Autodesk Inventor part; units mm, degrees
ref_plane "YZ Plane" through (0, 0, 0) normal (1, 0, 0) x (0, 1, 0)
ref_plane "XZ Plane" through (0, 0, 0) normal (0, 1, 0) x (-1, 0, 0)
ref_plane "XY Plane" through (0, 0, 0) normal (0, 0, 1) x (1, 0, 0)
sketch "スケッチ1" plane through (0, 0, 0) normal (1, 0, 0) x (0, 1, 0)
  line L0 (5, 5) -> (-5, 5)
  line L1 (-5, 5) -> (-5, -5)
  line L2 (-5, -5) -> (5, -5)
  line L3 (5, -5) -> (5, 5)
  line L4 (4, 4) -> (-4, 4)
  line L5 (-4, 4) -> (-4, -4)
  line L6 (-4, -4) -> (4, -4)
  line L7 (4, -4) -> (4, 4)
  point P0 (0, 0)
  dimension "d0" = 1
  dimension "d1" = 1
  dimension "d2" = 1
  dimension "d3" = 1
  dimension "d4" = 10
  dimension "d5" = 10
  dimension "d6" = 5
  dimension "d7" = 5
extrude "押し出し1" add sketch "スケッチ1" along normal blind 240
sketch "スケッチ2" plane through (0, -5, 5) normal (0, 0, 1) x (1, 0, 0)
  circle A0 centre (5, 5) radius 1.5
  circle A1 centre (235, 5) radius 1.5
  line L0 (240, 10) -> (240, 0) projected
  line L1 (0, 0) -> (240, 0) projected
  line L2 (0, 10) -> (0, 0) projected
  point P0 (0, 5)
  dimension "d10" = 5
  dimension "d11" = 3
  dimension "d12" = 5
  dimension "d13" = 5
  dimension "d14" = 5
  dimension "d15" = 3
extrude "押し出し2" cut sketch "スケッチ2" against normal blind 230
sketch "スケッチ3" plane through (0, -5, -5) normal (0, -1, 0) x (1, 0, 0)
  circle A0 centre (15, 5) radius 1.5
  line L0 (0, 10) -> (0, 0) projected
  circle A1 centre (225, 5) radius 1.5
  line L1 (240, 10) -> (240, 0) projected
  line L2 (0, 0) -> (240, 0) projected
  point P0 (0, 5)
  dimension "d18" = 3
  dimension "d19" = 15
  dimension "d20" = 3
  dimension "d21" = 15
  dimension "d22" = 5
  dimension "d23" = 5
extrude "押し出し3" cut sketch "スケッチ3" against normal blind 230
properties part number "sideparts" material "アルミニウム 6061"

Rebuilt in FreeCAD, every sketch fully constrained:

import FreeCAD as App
import Part
import Sketcher

V = App.Vector
Q = App.Units.Quantity

doc = App.newDocument("Part")
body = doc.addObject("PartDesign::Body", "Body")

# Sketch on YZ plane
sketch1 = body.newObject("Sketcher::SketchObject", "Sketch")
sketch1.AttachmentSupport = (doc.getObject("YZ_Plane"), [""])
sketch1.MapMode = "FlatFace"
sketch1.addGeometry([
    Part.LineSegment(V(5, -5, 0), V(5, 5, 0)),  # 0
    Part.LineSegment(V(5, 5, 0), V(-5, 5, 0)),  # 1
    Part.LineSegment(V(-5, 5, 0), V(-5, -5, 0)),  # 2
    Part.LineSegment(V(-5, -5, 0), V(5, -5, 0)),  # 3
    Part.LineSegment(V(-4, 4, 0), V(4, 4, 0)),  # 4
    Part.LineSegment(V(4, 4, 0), V(4, -4, 0)),  # 5
    Part.LineSegment(V(4, -4, 0), V(-4, -4, 0)),  # 6
    Part.LineSegment(V(-4, -4, 0), V(-4, 4, 0)),  # 7
], False)
sketch1.addConstraint([
    Sketcher.Constraint("Coincident", 0, 2, 1, 1),
    Sketcher.Constraint("Coincident", 1, 2, 2, 1),
    Sketcher.Constraint("Coincident", 2, 2, 3, 1),
    Sketcher.Constraint("Coincident", 3, 2, 0, 1),
    Sketcher.Constraint("Coincident", 4, 2, 5, 1),
    Sketcher.Constraint("Coincident", 5, 2, 6, 1),
    Sketcher.Constraint("Coincident", 6, 2, 7, 1),
    Sketcher.Constraint("Coincident", 7, 2, 4, 1),
    Sketcher.Constraint("Vertical", 0),
    Sketcher.Constraint("Horizontal", 1),
    Sketcher.Constraint("Vertical", 2),
    Sketcher.Constraint("Horizontal", 3),
    Sketcher.Constraint("Horizontal", 4),
    Sketcher.Constraint("Vertical", 5),
    Sketcher.Constraint("Horizontal", 6),
    Sketcher.Constraint("Vertical", 7),
    Sketcher.Constraint("Symmetric", 0, 2, 2, 2, -1, 1),
    Sketcher.Constraint("Symmetric", 4, 2, 6, 2, -1, 1),
    Sketcher.Constraint("Equal", 3, 0),
    Sketcher.Constraint("Equal", 6, 5),
    Sketcher.Constraint("DistanceX", 1, 2, 1, 1, Q("10 mm")),
    Sketcher.Constraint("DistanceX", 4, 2, 0, 2, Q("1 mm")),
])
pad1 = body.newObject("PartDesign::Pad", "Pad")
pad1.Profile = sketch1
pad1.Length = 240

# Sketch on XY plane
sketch2 = body.newObject("Sketcher::SketchObject", "Sketch001")
sketch2.AttachmentSupport = (doc.getObject("XY_Plane"), [""])
sketch2.MapMode = "FlatFace"
sketch2.AttachmentOffset = App.Placement(V(0, 0, 5), App.Rotation())
sketch2.addGeometry([
    Part.Circle(V(5, 0, 0), V(0, 0, 1), 1.5),
    Part.Circle(V(235, 0, 0), V(0, 0, 1), 1.5),
], False)
sketch2.addConstraint([
    Sketcher.Constraint("Equal", 0, 1),
    Sketcher.Constraint("PointOnObject", 0, 3, -1),
    Sketcher.Constraint("PointOnObject", 1, 3, -1),
    Sketcher.Constraint("Diameter", 0, Q("3 mm")),
    Sketcher.Constraint("DistanceX", -1, 1, 0, 3, Q("5 mm")),
    Sketcher.Constraint("DistanceX", -1, 1, 1, 3, Q("235 mm")),
])
pocket1 = body.newObject("PartDesign::Pocket", "Pocket")
pocket1.Profile = sketch2
pocket1.Length = 230

# Sketch on XZ plane
sketch3 = body.newObject("Sketcher::SketchObject", "Sketch002")
sketch3.AttachmentSupport = (doc.getObject("XZ_Plane"), [""])
sketch3.MapMode = "FlatFace"
sketch3.AttachmentOffset = App.Placement(V(0, 0, 5), App.Rotation())
sketch3.addGeometry([
    Part.Circle(V(15, 0, 0), V(0, 0, 1), 1.5),
    Part.Circle(V(225, 0, 0), V(0, 0, 1), 1.5),
], False)
sketch3.addConstraint([
    Sketcher.Constraint("Equal", 0, 1),
    Sketcher.Constraint("PointOnObject", 0, 3, -1),
    Sketcher.Constraint("PointOnObject", 1, 3, -1),
    Sketcher.Constraint("Diameter", 0, Q("3 mm")),
    Sketcher.Constraint("DistanceX", -1, 1, 0, 3, Q("15 mm")),
    Sketcher.Constraint("DistanceX", -1, 1, 1, 3, Q("225 mm")),
])
pocket2 = body.newObject("PartDesign::Pocket", "Pocket001")
pocket2.Profile = sketch3
pocket2.Length = 230

doc.recompute()
